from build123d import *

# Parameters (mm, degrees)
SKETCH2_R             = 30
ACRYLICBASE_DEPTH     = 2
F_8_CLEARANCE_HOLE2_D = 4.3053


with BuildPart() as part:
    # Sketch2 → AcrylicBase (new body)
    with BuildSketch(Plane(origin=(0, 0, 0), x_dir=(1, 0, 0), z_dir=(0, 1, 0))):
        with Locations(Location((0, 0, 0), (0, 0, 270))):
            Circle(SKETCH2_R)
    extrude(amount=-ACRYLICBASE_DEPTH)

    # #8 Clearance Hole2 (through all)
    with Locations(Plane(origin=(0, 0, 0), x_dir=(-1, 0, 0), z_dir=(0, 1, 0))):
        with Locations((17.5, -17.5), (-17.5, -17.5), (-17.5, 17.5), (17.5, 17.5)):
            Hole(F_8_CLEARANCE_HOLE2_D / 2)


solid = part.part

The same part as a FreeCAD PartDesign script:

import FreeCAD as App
import Part
import Sketcher
from FreeCAD import Vector

doc = App.newDocument("Part")
params = doc.addObject("Spreadsheet::Sheet", "Params")
for row, (alias, value) in enumerate([
    ("sketch1_diameter", "60 mm"),
    ("pad1_length", "2 mm"),
    ("hole_diameter", "4.3053 mm"),
], start=1):
    params.set(f"A{row}", alias)
    params.set(f"B{row}", "=" + value)
    params.setAlias(f"B{row}", alias)

body = doc.addObject("PartDesign::Body", "Body")

# Sketch on XZ plane
sketch1 = body.newObject("Sketcher::SketchObject", "Sketch")
sketch1.AttachmentSupport = (doc.getObject("XZ_Plane"), [""])
sketch1.MapMode = "FlatFace"
sketch1.addGeometry(Part.Circle(Vector(0, 0, 0), Vector(0, 0, 1), 30), False)
sketch1.addConstraint(Sketcher.Constraint("Coincident", 0, 3, -1, 1))
sketch1.addConstraint(Sketcher.Constraint("Diameter", 0, 60.0))
sketch1.setExpression("Constraints[1]", "Params.sketch1_diameter")
pad1 = body.newObject("PartDesign::Pad", "Pad")
pad1.Profile = sketch1
pad1.setExpression("Length", "Params.pad1_length")

# Sketch on XZ plane
sketch2 = body.newObject("Sketcher::SketchObject", "Sketch001")
sketch2.AttachmentSupport = (doc.getObject("XZ_Plane"), [""])
sketch2.MapMode = "FlatFace"
sketch2.addGeometry(Part.Circle(Vector(-17.5, -17.5, 0), Vector(0, 0, 1), 2.2), False)
sketch2.addGeometry(Part.Circle(Vector(17.5, -17.5, 0), Vector(0, 0, 1), 2.2), False)
sketch2.addGeometry(Part.Circle(Vector(17.5, 17.5, 0), Vector(0, 0, 1), 2.2), False)
sketch2.addGeometry(Part.Circle(Vector(-17.5, 17.5, 0), Vector(0, 0, 1), 2.2), False)
sketch2.addConstraint(Sketcher.Constraint("Equal", 0, 1))
sketch2.addConstraint(Sketcher.Constraint("Equal", 1, 2))
sketch2.addConstraint(Sketcher.Constraint("Equal", 2, 3))
sketch2.addConstraint(Sketcher.Constraint("Symmetric", 0, 3, 2, 3, -1, 1))
sketch2.addConstraint(Sketcher.Constraint("Symmetric", 1, 3, 3, 3, -1, 1))
sketch2.addConstraint(Sketcher.Constraint("Symmetric", 0, 3, 1, 3, -2))
sketch2.addConstraint(Sketcher.Constraint("DistanceX", 0, 3, 1, 3, 35.0))
sketch2.addConstraint(Sketcher.Constraint("DistanceY", 1, 3, 2, 3, 35.0))
sketch2.addConstraint(Sketcher.Constraint("Diameter", 0, 4.3053))
doc.recompute()
hole = body.newObject("PartDesign::Hole", "Hole")
hole.Profile = sketch2
hole.ThreadType = "None"
hole.setExpression("Diameter", "Params.hole_diameter")
hole.DepthType = "ThroughAll"
hole.Reversed = True

doc.recompute()
